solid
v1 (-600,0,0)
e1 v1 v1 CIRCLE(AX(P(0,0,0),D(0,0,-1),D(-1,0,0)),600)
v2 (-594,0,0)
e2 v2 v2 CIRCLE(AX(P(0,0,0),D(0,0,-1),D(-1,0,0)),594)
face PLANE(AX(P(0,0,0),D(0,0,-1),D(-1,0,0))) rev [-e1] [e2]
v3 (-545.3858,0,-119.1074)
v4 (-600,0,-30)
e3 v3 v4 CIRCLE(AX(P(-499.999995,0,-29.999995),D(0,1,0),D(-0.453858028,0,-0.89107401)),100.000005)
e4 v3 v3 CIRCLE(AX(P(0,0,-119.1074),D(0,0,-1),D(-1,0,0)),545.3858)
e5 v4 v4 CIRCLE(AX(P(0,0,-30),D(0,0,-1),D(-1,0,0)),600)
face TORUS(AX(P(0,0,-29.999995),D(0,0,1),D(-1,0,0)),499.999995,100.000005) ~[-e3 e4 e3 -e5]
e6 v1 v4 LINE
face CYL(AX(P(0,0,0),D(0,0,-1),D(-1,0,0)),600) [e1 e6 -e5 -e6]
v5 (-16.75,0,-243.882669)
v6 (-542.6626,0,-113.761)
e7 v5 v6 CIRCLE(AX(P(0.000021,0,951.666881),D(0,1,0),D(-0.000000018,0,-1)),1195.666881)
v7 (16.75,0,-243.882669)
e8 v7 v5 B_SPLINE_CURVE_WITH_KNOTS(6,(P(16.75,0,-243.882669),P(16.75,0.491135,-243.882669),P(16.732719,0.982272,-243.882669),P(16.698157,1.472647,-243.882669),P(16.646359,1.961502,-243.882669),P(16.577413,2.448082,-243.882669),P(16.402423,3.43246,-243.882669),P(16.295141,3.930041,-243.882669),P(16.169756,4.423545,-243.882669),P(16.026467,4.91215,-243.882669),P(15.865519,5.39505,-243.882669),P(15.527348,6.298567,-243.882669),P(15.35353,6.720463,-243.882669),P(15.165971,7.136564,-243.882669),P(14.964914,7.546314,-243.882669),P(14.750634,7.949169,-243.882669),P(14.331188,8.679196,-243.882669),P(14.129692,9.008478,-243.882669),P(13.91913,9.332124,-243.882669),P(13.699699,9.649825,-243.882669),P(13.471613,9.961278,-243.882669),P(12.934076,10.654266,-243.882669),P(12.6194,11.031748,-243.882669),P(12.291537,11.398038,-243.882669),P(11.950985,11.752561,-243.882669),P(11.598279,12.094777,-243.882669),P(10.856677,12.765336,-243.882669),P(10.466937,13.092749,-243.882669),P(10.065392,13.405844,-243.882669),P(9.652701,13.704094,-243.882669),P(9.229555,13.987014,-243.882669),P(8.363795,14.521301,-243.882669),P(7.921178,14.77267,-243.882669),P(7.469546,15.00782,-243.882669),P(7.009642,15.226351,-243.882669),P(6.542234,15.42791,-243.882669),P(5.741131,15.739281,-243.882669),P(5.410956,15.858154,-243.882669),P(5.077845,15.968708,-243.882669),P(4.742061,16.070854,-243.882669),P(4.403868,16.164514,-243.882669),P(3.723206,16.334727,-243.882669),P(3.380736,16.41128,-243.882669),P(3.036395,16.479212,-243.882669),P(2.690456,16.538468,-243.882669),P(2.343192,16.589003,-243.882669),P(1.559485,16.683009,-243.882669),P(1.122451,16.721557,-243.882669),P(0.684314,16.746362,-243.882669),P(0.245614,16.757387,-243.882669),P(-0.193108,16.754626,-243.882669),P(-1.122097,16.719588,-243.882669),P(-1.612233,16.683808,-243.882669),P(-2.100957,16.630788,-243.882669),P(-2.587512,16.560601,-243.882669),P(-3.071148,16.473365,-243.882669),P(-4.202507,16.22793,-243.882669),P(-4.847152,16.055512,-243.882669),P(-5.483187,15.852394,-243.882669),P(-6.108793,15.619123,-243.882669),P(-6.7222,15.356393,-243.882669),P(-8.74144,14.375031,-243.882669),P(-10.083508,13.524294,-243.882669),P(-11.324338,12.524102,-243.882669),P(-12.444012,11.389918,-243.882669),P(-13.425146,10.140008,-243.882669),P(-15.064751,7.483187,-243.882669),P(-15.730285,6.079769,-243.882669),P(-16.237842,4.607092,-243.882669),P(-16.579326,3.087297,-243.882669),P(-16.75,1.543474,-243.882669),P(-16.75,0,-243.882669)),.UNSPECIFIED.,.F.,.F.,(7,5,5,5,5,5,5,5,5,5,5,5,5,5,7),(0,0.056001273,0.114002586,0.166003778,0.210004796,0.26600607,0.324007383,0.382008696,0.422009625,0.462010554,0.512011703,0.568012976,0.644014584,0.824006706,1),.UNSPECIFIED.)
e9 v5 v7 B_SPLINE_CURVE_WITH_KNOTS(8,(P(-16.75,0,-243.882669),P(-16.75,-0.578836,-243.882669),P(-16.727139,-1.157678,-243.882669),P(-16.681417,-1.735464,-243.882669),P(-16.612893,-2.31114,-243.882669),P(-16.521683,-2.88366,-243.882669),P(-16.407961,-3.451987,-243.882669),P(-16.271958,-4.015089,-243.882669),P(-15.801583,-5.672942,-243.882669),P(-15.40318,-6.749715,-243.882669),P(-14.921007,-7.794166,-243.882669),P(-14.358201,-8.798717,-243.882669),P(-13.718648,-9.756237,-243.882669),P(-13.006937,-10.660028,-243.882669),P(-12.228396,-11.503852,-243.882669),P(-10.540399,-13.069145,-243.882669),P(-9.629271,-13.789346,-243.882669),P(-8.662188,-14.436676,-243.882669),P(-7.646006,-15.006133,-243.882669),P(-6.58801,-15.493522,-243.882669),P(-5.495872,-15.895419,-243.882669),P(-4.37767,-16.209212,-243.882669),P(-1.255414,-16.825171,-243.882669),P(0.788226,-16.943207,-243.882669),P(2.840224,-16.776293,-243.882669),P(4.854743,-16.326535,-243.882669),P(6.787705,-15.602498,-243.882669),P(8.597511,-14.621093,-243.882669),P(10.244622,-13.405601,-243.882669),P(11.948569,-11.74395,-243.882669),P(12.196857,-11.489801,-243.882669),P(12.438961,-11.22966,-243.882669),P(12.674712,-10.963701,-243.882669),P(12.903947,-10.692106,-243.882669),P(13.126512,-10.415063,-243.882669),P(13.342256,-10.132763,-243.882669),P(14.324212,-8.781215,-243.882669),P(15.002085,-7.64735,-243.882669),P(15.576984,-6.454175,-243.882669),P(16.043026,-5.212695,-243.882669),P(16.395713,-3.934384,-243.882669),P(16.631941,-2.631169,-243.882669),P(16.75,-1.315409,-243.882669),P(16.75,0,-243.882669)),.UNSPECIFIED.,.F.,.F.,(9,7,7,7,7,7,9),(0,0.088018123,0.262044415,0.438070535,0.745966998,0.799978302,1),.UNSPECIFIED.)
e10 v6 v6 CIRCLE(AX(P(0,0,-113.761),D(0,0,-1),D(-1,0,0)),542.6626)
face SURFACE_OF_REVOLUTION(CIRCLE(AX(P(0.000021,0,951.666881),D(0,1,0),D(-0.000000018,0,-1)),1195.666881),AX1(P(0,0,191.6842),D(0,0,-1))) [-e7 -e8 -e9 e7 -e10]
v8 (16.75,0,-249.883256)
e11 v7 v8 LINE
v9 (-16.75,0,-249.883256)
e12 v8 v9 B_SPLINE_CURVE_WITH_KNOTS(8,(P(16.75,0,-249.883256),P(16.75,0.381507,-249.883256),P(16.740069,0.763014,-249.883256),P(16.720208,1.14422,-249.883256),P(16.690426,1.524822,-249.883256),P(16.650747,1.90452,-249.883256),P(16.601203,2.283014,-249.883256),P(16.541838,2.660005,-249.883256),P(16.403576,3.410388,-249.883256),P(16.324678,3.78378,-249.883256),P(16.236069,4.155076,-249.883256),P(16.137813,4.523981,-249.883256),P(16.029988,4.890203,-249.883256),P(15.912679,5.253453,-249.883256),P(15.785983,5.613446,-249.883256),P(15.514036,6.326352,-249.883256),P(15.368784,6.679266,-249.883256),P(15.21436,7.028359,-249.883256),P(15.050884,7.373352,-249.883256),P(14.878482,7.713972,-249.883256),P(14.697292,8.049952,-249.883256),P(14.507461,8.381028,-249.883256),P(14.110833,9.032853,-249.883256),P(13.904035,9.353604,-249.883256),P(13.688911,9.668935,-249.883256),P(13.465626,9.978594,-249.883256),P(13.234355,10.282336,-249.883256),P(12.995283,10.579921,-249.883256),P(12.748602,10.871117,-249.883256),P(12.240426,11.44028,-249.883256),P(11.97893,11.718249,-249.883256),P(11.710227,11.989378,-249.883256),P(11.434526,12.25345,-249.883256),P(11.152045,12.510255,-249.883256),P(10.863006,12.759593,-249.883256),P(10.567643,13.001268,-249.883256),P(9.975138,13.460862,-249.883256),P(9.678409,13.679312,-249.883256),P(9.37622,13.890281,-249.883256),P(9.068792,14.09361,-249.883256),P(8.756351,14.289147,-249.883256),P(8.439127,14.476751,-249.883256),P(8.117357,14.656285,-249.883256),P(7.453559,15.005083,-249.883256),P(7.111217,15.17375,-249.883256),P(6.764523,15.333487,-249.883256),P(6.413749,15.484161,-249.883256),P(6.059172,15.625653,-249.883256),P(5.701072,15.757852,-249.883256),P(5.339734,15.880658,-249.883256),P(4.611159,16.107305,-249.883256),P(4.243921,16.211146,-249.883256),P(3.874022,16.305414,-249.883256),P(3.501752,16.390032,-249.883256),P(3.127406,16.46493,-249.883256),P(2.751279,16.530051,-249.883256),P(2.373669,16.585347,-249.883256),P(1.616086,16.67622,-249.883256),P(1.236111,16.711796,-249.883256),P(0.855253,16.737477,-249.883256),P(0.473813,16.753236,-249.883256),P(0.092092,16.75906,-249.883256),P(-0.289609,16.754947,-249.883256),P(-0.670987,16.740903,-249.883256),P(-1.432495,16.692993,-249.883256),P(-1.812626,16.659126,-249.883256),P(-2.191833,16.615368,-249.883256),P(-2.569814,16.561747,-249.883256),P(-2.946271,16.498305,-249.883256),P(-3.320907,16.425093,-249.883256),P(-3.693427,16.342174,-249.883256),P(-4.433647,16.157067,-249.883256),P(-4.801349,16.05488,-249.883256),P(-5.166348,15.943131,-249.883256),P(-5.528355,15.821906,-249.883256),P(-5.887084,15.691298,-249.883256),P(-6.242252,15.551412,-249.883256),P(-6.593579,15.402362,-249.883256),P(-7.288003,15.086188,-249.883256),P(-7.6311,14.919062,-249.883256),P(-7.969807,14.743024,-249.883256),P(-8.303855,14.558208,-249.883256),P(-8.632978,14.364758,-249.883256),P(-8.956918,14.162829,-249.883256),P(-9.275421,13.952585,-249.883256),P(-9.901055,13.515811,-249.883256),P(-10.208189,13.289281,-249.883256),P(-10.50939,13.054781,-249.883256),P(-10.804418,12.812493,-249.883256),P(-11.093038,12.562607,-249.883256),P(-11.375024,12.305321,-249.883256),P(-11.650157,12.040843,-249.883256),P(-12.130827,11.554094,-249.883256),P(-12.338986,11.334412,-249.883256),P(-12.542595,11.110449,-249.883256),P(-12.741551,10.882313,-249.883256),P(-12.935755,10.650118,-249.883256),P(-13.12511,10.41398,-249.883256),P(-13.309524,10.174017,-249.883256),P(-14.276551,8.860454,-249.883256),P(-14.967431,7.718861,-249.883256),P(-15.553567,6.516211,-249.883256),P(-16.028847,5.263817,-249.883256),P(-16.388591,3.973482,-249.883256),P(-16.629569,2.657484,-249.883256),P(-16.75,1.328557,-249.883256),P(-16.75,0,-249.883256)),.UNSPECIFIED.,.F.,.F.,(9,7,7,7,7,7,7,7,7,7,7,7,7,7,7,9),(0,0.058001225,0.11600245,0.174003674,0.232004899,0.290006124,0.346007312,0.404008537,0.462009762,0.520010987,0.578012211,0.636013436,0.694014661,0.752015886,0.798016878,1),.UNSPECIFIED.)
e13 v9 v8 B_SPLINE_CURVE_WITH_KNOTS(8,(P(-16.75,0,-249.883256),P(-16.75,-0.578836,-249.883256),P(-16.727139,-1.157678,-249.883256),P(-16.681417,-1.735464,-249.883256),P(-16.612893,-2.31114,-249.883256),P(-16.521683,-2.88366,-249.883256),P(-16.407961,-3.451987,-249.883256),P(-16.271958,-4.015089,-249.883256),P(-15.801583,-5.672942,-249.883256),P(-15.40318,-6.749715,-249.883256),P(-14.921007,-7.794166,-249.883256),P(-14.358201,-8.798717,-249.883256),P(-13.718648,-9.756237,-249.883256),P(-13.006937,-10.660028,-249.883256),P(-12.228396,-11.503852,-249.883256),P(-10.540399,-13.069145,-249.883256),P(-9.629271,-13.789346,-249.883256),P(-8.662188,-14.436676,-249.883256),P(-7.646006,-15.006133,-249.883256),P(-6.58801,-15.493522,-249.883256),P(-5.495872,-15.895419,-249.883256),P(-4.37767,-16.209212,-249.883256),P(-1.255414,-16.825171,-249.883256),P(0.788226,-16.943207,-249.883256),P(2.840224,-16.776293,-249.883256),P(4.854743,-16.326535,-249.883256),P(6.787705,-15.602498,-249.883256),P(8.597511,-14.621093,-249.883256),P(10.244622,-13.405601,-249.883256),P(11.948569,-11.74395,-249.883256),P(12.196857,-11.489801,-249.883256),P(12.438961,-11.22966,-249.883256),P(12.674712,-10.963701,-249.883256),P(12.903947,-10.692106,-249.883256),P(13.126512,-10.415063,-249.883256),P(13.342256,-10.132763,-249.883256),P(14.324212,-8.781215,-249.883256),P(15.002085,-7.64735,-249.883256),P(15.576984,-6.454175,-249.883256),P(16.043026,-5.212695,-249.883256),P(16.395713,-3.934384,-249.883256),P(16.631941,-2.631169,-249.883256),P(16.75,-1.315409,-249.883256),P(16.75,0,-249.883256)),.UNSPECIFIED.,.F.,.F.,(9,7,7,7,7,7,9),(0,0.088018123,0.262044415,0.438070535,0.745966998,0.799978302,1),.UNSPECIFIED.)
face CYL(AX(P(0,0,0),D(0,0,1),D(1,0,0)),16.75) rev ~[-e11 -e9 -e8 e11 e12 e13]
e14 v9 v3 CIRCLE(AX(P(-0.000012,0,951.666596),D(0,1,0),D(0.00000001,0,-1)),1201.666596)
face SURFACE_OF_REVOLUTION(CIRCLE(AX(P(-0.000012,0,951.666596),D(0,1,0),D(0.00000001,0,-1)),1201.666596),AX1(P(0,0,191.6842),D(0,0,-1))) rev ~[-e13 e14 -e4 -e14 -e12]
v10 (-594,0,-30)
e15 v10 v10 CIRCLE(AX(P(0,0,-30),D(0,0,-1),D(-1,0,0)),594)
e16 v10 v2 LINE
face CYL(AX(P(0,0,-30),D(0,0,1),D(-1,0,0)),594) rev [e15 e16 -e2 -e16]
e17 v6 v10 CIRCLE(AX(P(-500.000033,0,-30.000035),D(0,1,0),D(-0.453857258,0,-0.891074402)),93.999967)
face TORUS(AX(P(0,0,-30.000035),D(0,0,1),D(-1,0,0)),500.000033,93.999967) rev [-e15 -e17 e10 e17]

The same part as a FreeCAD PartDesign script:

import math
import FreeCAD as App
import Part
import Sketcher

doc = App.newDocument("Part")
body = doc.addObject("PartDesign::Body", "Body")

sketch1 = body.newObject("Sketcher::SketchObject", "Sketch")
sketch1.AttachmentSupport = (doc.getObject("XZ_Plane"), [""])
sketch1.MapMode = "FlatFace"
sketch1.addGeometry(Part.LineSegment(App.Vector(-600, -30, 0), App.Vector(-600, 0, 0)), False)
sketch1.addGeometry(Part.LineSegment(App.Vector(-600, 0, 0), App.Vector(-594, 0, 0)), False)
sketch1.addGeometry(Part.LineSegment(App.Vector(-594, 0, 0), App.Vector(-594, -30, 0)), False)
sketch1.addGeometry(Part.ArcOfCircle(Part.Circle(App.Vector(-500, -30, 0), App.Vector(0, 0, 1), 94.000014), math.radians(180), math.radians(243.00856)), False)
sketch1.addGeometry(Part.ArcOfCircle(Part.Circle(App.Vector(0, 951.6667, 0), App.Vector(0, 0, 1), 1195.6667), math.radians(-116.991464), math.radians(-90)), False)
sketch1.addGeometry(Part.LineSegment(App.Vector(0, -244, 0), App.Vector(0, -250, 0)), False)
sketch1.addGeometry(Part.ArcOfCircle(Part.Circle(App.Vector(0, 951.6667, 0), App.Vector(0, 0, 1), 1201.6667), math.radians(-116.991467), math.radians(-90)), False)
sketch1.addGeometry(Part.ArcOfCircle(Part.Circle(App.Vector(-500, -30, 0), App.Vector(0, 0, 1), 99.999998), math.radians(180), math.radians(243.008519)), False)
sketch1.addConstraint(Sketcher.Constraint("Coincident", 0, 2, 1, 1))
sketch1.addConstraint(Sketcher.Constraint("Coincident", 1, 2, 2, 1))
sketch1.addConstraint(Sketcher.Constraint("Tangent", 2, 2, 3, 1))
sketch1.addConstraint(Sketcher.Constraint("Tangent", 3, 2, 4, 1))
sketch1.addConstraint(Sketcher.Constraint("Coincident", 4, 2, 5, 1))
sketch1.addConstraint(Sketcher.Constraint("Coincident", 5, 2, 6, 2))
sketch1.addConstraint(Sketcher.Constraint("Tangent", 6, 1, 7, 2))
sketch1.addConstraint(Sketcher.Constraint("Tangent", 7, 1, 0, 1))
sketch1.addConstraint(Sketcher.Constraint("Vertical", 0))
sketch1.addConstraint(Sketcher.Constraint("Horizontal", 1))
sketch1.addConstraint(Sketcher.Constraint("Vertical", 2))
sketch1.addConstraint(Sketcher.Constraint("Vertical", 5))
sketch1.addConstraint(Sketcher.Constraint("Coincident", 6, 3, 4, 3))
sketch1.addConstraint(Sketcher.Constraint("Coincident", 7, 3, 3, 3))
sketch1.addConstraint(Sketcher.Constraint("PointOnObject", 4, 3, -2))
sketch1.addConstraint(Sketcher.Constraint("PointOnObject", 0, 2, -1))
sketch1.addConstraint(Sketcher.Constraint("PointOnObject", 5, 2, -2))
sketch1.addConstraint(Sketcher.Constraint("Radius", 7, 100.0))
sketch1.addConstraint(Sketcher.Constraint("DistanceX", 1, 1, 1, 2, 6.0))
sketch1.addConstraint(Sketcher.Constraint("DistanceY", 0, 1, 0, 2, 30.0))
sketch1.addConstraint(Sketcher.Constraint("DistanceY", 5, 2, -1, 1, 250.0))
sketch1.addConstraint(Sketcher.Constraint("Radius", 6, 1201.6667))
revolution = body.newObject("PartDesign::Revolution", "Revolution")
revolution.Profile = sketch1
revolution.ReferenceAxis = (sketch1, ["V_Axis"])
revolution.Angle = 360

sketch2 = body.newObject("Sketcher::SketchObject", "Sketch001")
sketch2.AttachmentSupport = (doc.getObject("XY_Plane"), [""])
sketch2.MapMode = "FlatFace"
sketch2.addGeometry(Part.Circle(App.Vector(0, 0, 0), App.Vector(0, 0, 1), 16.75), False)
sketch2.addConstraint(Sketcher.Constraint("Coincident", 0, 3, -1, 1))
sketch2.addConstraint(Sketcher.Constraint("Diameter", 0, 33.5))
pocket1 = body.newObject("PartDesign::Pocket", "Pocket")
pocket1.Profile = sketch2
pocket1.Type = "ThroughAll"

doc.recompute()
